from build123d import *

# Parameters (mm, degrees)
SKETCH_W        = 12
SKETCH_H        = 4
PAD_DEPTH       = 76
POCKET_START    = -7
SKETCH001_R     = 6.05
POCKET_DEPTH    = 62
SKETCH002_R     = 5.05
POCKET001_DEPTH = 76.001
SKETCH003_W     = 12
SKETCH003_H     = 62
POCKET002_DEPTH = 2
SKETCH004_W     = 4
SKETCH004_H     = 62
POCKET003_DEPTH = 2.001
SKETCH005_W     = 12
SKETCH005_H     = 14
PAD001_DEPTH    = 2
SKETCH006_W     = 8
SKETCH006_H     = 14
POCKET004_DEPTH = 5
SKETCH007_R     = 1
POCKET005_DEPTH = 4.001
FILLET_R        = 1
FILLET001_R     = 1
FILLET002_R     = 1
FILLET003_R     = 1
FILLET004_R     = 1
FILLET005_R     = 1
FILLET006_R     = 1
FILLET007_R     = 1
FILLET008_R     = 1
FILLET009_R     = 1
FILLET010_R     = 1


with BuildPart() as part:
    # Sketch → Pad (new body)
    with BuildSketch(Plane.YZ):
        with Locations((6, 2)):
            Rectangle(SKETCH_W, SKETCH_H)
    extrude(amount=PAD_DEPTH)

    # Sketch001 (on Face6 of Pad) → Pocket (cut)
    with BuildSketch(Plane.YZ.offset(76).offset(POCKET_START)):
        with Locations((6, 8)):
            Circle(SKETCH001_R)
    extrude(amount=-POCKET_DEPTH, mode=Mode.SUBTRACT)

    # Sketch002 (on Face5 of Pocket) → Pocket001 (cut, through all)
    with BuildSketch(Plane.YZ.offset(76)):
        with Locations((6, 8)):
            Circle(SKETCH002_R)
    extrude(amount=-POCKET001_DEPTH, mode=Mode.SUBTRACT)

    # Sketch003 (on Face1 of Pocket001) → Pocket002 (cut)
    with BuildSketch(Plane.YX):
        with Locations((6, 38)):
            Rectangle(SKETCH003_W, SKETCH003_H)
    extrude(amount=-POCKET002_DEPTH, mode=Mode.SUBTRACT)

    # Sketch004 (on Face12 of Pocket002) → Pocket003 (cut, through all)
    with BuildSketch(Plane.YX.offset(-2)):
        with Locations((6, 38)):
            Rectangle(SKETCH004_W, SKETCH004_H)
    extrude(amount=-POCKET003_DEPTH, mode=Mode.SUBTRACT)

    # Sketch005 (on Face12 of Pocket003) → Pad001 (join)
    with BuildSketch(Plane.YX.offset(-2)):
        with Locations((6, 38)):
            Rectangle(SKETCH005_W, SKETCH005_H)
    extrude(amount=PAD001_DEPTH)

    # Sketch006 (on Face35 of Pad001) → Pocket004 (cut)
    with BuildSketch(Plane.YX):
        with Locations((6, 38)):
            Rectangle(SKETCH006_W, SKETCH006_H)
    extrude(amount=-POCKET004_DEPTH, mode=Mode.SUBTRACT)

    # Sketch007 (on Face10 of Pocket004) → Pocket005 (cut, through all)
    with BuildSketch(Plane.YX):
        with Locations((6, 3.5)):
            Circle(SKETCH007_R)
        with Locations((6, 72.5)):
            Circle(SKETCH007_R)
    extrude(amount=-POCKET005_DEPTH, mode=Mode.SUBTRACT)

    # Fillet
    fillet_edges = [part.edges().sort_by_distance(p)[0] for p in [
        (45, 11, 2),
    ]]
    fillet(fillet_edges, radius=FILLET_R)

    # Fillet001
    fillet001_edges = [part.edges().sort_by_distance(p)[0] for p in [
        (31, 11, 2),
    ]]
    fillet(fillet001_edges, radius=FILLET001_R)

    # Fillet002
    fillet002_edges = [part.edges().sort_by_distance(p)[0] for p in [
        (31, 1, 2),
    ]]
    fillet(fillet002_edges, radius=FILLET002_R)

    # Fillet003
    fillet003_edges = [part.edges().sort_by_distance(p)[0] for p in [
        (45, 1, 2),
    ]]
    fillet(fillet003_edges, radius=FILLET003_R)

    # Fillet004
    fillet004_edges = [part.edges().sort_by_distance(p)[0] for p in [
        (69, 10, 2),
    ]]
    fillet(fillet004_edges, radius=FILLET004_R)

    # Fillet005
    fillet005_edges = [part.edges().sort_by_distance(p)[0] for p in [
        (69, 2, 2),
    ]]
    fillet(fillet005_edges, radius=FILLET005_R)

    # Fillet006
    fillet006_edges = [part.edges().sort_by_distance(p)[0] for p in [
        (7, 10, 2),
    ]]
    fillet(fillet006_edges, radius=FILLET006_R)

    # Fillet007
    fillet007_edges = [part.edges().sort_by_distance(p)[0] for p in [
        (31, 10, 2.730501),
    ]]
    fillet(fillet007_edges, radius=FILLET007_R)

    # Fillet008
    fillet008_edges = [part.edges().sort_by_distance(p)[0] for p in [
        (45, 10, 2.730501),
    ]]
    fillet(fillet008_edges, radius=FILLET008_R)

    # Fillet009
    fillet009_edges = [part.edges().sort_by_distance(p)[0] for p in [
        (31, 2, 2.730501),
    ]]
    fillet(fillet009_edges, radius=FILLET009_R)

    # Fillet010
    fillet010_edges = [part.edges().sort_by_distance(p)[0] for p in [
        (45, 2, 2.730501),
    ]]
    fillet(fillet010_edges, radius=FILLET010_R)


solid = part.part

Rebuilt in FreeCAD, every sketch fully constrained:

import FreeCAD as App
import Part
import Sketcher

V = App.Vector
Q = App.Units.Quantity


def edges_at(feature, points):
    """Names of the edges that pass closest to the given points."""
    edges = feature.Shape.Edges
    near = lambda p: min(range(len(edges)), key=lambda i: edges[i].distToShape(Part.Vertex(*p))[0])
    return sorted({f"Edge{near(p) + 1}" for p in points})


def add_polygon(sketch, points):
    """Adds a closed chain of lines whose ends are joined by coincident constraints."""
    first, n = sketch.GeometryCount, len(points)
    for a, b in zip(points, points[1:] + points[:1]):
        sketch.addGeometry(Part.LineSegment(App.Vector(*a, 0), App.Vector(*b, 0)), False)
    for i in range(n):
        sketch.addConstraint(Sketcher.Constraint("Coincident", first + i, 2, first + (i + 1) % n, 1))

doc = App.newDocument("Part")
body = doc.addObject("PartDesign::Body", "Body")

sketch1 = body.newObject("Sketcher::SketchObject", "Sketch")
sketch1.AttachmentSupport = (doc.getObject("YZ_Plane"), [""])
sketch1.MapMode = "FlatFace"
add_polygon(sketch1, [(0, 4), (0, 0), (12, 0), (12, 4)])
sketch1.addConstraint([
    Sketcher.Constraint("Vertical", 0),
    Sketcher.Constraint("Horizontal", 1),
    Sketcher.Constraint("Vertical", 2),
    Sketcher.Constraint("Horizontal", 3),
    Sketcher.Constraint("Coincident", 0, 2, -1, 1),
    Sketcher.Constraint("DistanceX", 1, 1, 1, 2, Q("12 mm")),
    Sketcher.Constraint("DistanceY", 0, 2, 0, 1, Q("4 mm")),
])
pad1 = body.newObject("PartDesign::Pad", "Pad")
pad1.Profile = sketch1
pad1.Length = 76

sketch2 = body.newObject("Sketcher::SketchObject", "Sketch001")
sketch2.AttachmentSupport = (doc.getObject("YZ_Plane"), [""])
sketch2.MapMode = "FlatFace"
sketch2.AttachmentOffset = App.Placement(V(0, 0, 69), App.Rotation())
sketch2.addGeometry(Part.Circle(V(6, 8, 0), V(0, 0, 1), 6), False)
sketch2.addConstraint([
    Sketcher.Constraint("Diameter", 0, Q("12.1 mm")),
    Sketcher.Constraint("DistanceX", -1, 1, 0, 3, Q("6 mm")),
    Sketcher.Constraint("DistanceY", -1, 1, 0, 3, Q("8 mm")),
])
pocket1 = body.newObject("PartDesign::Pocket", "Pocket")
pocket1.Profile = sketch2
pocket1.Length = 62

sketch3 = body.newObject("Sketcher::SketchObject", "Sketch002")
sketch3.AttachmentSupport = (doc.getObject("YZ_Plane"), [""])
sketch3.MapMode = "FlatFace"
sketch3.AttachmentOffset = App.Placement(V(0, 0, 76), App.Rotation())
sketch3.addGeometry(Part.Circle(V(6, 8, 0), V(0, 0, 1), 5), False)
sketch3.addConstraint([
    Sketcher.Constraint("Diameter", 0, Q("10.1 mm")),
    Sketcher.Constraint("DistanceX", -1, 1, 0, 3, Q("6 mm")),
    Sketcher.Constraint("DistanceY", -1, 1, 0, 3, Q("8 mm")),
])
pocket2 = body.newObject("PartDesign::Pocket", "Pocket001")
pocket2.Profile = sketch3
pocket2.Type = "ThroughAll"

sketch4 = body.newObject("Sketcher::SketchObject", "Sketch003")
sketch4.AttachmentSupport = (doc.getObject("XY_Plane"), [""])
sketch4.MapMode = "FlatFace"
add_polygon(sketch4, [(69, 0), (7, 0), (7, 12), (69, 12)])
sketch4.addConstraint([
    Sketcher.Constraint("Horizontal", 0),
    Sketcher.Constraint("Vertical", 1),
    Sketcher.Constraint("Horizontal", 2),
    Sketcher.Constraint("Vertical", 3),
    Sketcher.Constraint("PointOnObject", 0, 2, -1),
    Sketcher.Constraint("DistanceX", 0, 2, 0, 1, Q("62 mm")),
    Sketcher.Constraint("DistanceY", 1, 1, 1, 2, Q("12 mm")),
    Sketcher.Constraint("DistanceX", -1, 1, 0, 2, Q("7 mm")),
])
pocket3 = body.newObject("PartDesign::Pocket", "Pocket002")
pocket3.Profile = sketch4
pocket3.Length = 2
pocket3.Reversed = True

sketch5 = body.newObject("Sketcher::SketchObject", "Sketch004")
sketch5.AttachmentSupport = (doc.getObject("XY_Plane"), [""])
sketch5.MapMode = "FlatFace"
sketch5.AttachmentOffset = App.Placement(V(0, 0, 2), App.Rotation())
add_polygon(sketch5, [(69, 4), (7, 4), (7, 8), (69, 8)])
sketch5.addConstraint([
    Sketcher.Constraint("Horizontal", 0),
    Sketcher.Constraint("Vertical", 1),
    Sketcher.Constraint("Horizontal", 2),
    Sketcher.Constraint("Vertical", 3),
    Sketcher.Constraint("DistanceX", 0, 2, 0, 1, Q("62 mm")),
    Sketcher.Constraint("DistanceY", 1, 1, 1, 2, Q("4 mm")),
    Sketcher.Constraint("DistanceX", -1, 1, 0, 2, Q("7 mm")),
    Sketcher.Constraint("DistanceY", -1, 1, 0, 2, Q("4 mm")),
])
pocket4 = body.newObject("PartDesign::Pocket", "Pocket003")
pocket4.Profile = sketch5
pocket4.Type = "ThroughAll"
pocket4.Reversed = True

sketch6 = body.newObject("Sketcher::SketchObject", "Sketch005")
sketch6.AttachmentSupport = (doc.getObject("XY_Plane"), [""])
sketch6.MapMode = "FlatFace"
sketch6.AttachmentOffset = App.Placement(V(0, 0, 2), App.Rotation())
add_polygon(sketch6, [(45, 0), (31, 0), (31, 12), (45, 12)])
sketch6.addConstraint([
    Sketcher.Constraint("Horizontal", 0),
    Sketcher.Constraint("Vertical", 1),
    Sketcher.Constraint("Horizontal", 2),
    Sketcher.Constraint("Vertical", 3),
    Sketcher.Constraint("PointOnObject", 0, 2, -1),
    Sketcher.Constraint("DistanceX", 0, 2, 0, 1, Q("14 mm")),
    Sketcher.Constraint("DistanceY", 1, 1, 1, 2, Q("12 mm")),
    Sketcher.Constraint("DistanceX", -1, 1, 0, 2, Q("31 mm")),
])
pad2 = body.newObject("PartDesign::Pad", "Pad001")
pad2.Profile = sketch6
pad2.Length = 2
pad2.Reversed = True

sketch7 = body.newObject("Sketcher::SketchObject", "Sketch006")
sketch7.AttachmentSupport = (doc.getObject("XY_Plane"), [""])
sketch7.MapMode = "FlatFace"
add_polygon(sketch7, [(45, 2), (31, 2), (31, 10), (45, 10)])
sketch7.addConstraint([
    Sketcher.Constraint("Horizontal", 0),
    Sketcher.Constraint("Vertical", 1),
    Sketcher.Constraint("Horizontal", 2),
    Sketcher.Constraint("Vertical", 3),
    Sketcher.Constraint("DistanceX", 0, 2, 0, 1, Q("14 mm")),
    Sketcher.Constraint("DistanceY", 1, 1, 1, 2, Q("8 mm")),
    Sketcher.Constraint("DistanceX", -1, 1, 0, 2, Q("31 mm")),
    Sketcher.Constraint("DistanceY", -1, 1, 0, 2, Q("2 mm")),
])
pocket5 = body.newObject("PartDesign::Pocket", "Pocket004")
pocket5.Profile = sketch7
pocket5.Length = 5
pocket5.Reversed = True

sketch8 = body.newObject("Sketcher::SketchObject", "Sketch007")
sketch8.AttachmentSupport = (doc.getObject("XY_Plane"), [""])
sketch8.MapMode = "FlatFace"
sketch8.addGeometry([
    Part.Circle(V(3.5, 6, 0), V(0, 0, 1), 1),
    Part.Circle(V(72.5, 6, 0), V(0, 0, 1), 1),
], False)
sketch8.addConstraint([
    Sketcher.Constraint("Equal", 0, 1),
    Sketcher.Constraint("Horizontal", 0, 3, 1, 3),
    Sketcher.Constraint("Diameter", 0, Q("2 mm")),
    Sketcher.Constraint("DistanceY", -1, 1, 0, 3, Q("6 mm")),
    Sketcher.Constraint("DistanceX", 0, 3, 1, 3, Q("69 mm")),
    Sketcher.Constraint("DistanceX", -1, 1, 0, 3, Q("3.5 mm")),
])
pocket6 = body.newObject("PartDesign::Pocket", "Pocket005")
pocket6.Profile = sketch8
pocket6.Type = "ThroughAll"
pocket6.Reversed = True
doc.recompute()

fillet = body.newObject("PartDesign::Fillet", "Fillet")
fillet.Base = (pocket6, edges_at(pocket6, [(45, 11, 2)]))
fillet.Radius = 1
doc.recompute()

fillet2 = body.newObject("PartDesign::Fillet", "Fillet001")
fillet2.Base = (fillet, edges_at(fillet, [(31, 11, 2)]))
fillet2.Radius = 1
doc.recompute()

fillet3 = body.newObject("PartDesign::Fillet", "Fillet002")
fillet3.Base = (fillet2, edges_at(fillet2, [(31, 1, 2)]))
fillet3.Radius = 1
doc.recompute()

fillet4 = body.newObject("PartDesign::Fillet", "Fillet003")
fillet4.Base = (fillet3, edges_at(fillet3, [(45, 1, 2)]))
fillet4.Radius = 1
doc.recompute()

fillet5 = body.newObject("PartDesign::Fillet", "Fillet004")
fillet5.Base = (fillet4, edges_at(fillet4, [(69, 10, 2)]))
fillet5.Radius = 1
doc.recompute()

fillet6 = body.newObject("PartDesign::Fillet", "Fillet005")
fillet6.Base = (fillet5, edges_at(fillet5, [(69, 2, 2)]))
fillet6.Radius = 1
doc.recompute()

fillet7 = body.newObject("PartDesign::Fillet", "Fillet006")
fillet7.Base = (fillet6, edges_at(fillet6, [(7, 10, 2)]))
fillet7.Radius = 1
doc.recompute()

fillet8 = body.newObject("PartDesign::Fillet", "Fillet007")
fillet8.Base = (fillet7, edges_at(fillet7, [(31, 10, 2.731)]))
fillet8.Radius = 1
doc.recompute()

fillet9 = body.newObject("PartDesign::Fillet", "Fillet008")
fillet9.Base = (fillet8, edges_at(fillet8, [(45, 10, 2.731)]))
fillet9.Radius = 1
doc.recompute()

fillet10 = body.newObject("PartDesign::Fillet", "Fillet009")
fillet10.Base = (fillet9, edges_at(fillet9, [(31, 2, 2.731)]))
fillet10.Radius = 1
doc.recompute()

fillet11 = body.newObject("PartDesign::Fillet", "Fillet010")
fillet11.Base = (fillet10, edges_at(fillet10, [(45, 2, 2.731)]))
fillet11.Radius = 1

doc.recompute()
